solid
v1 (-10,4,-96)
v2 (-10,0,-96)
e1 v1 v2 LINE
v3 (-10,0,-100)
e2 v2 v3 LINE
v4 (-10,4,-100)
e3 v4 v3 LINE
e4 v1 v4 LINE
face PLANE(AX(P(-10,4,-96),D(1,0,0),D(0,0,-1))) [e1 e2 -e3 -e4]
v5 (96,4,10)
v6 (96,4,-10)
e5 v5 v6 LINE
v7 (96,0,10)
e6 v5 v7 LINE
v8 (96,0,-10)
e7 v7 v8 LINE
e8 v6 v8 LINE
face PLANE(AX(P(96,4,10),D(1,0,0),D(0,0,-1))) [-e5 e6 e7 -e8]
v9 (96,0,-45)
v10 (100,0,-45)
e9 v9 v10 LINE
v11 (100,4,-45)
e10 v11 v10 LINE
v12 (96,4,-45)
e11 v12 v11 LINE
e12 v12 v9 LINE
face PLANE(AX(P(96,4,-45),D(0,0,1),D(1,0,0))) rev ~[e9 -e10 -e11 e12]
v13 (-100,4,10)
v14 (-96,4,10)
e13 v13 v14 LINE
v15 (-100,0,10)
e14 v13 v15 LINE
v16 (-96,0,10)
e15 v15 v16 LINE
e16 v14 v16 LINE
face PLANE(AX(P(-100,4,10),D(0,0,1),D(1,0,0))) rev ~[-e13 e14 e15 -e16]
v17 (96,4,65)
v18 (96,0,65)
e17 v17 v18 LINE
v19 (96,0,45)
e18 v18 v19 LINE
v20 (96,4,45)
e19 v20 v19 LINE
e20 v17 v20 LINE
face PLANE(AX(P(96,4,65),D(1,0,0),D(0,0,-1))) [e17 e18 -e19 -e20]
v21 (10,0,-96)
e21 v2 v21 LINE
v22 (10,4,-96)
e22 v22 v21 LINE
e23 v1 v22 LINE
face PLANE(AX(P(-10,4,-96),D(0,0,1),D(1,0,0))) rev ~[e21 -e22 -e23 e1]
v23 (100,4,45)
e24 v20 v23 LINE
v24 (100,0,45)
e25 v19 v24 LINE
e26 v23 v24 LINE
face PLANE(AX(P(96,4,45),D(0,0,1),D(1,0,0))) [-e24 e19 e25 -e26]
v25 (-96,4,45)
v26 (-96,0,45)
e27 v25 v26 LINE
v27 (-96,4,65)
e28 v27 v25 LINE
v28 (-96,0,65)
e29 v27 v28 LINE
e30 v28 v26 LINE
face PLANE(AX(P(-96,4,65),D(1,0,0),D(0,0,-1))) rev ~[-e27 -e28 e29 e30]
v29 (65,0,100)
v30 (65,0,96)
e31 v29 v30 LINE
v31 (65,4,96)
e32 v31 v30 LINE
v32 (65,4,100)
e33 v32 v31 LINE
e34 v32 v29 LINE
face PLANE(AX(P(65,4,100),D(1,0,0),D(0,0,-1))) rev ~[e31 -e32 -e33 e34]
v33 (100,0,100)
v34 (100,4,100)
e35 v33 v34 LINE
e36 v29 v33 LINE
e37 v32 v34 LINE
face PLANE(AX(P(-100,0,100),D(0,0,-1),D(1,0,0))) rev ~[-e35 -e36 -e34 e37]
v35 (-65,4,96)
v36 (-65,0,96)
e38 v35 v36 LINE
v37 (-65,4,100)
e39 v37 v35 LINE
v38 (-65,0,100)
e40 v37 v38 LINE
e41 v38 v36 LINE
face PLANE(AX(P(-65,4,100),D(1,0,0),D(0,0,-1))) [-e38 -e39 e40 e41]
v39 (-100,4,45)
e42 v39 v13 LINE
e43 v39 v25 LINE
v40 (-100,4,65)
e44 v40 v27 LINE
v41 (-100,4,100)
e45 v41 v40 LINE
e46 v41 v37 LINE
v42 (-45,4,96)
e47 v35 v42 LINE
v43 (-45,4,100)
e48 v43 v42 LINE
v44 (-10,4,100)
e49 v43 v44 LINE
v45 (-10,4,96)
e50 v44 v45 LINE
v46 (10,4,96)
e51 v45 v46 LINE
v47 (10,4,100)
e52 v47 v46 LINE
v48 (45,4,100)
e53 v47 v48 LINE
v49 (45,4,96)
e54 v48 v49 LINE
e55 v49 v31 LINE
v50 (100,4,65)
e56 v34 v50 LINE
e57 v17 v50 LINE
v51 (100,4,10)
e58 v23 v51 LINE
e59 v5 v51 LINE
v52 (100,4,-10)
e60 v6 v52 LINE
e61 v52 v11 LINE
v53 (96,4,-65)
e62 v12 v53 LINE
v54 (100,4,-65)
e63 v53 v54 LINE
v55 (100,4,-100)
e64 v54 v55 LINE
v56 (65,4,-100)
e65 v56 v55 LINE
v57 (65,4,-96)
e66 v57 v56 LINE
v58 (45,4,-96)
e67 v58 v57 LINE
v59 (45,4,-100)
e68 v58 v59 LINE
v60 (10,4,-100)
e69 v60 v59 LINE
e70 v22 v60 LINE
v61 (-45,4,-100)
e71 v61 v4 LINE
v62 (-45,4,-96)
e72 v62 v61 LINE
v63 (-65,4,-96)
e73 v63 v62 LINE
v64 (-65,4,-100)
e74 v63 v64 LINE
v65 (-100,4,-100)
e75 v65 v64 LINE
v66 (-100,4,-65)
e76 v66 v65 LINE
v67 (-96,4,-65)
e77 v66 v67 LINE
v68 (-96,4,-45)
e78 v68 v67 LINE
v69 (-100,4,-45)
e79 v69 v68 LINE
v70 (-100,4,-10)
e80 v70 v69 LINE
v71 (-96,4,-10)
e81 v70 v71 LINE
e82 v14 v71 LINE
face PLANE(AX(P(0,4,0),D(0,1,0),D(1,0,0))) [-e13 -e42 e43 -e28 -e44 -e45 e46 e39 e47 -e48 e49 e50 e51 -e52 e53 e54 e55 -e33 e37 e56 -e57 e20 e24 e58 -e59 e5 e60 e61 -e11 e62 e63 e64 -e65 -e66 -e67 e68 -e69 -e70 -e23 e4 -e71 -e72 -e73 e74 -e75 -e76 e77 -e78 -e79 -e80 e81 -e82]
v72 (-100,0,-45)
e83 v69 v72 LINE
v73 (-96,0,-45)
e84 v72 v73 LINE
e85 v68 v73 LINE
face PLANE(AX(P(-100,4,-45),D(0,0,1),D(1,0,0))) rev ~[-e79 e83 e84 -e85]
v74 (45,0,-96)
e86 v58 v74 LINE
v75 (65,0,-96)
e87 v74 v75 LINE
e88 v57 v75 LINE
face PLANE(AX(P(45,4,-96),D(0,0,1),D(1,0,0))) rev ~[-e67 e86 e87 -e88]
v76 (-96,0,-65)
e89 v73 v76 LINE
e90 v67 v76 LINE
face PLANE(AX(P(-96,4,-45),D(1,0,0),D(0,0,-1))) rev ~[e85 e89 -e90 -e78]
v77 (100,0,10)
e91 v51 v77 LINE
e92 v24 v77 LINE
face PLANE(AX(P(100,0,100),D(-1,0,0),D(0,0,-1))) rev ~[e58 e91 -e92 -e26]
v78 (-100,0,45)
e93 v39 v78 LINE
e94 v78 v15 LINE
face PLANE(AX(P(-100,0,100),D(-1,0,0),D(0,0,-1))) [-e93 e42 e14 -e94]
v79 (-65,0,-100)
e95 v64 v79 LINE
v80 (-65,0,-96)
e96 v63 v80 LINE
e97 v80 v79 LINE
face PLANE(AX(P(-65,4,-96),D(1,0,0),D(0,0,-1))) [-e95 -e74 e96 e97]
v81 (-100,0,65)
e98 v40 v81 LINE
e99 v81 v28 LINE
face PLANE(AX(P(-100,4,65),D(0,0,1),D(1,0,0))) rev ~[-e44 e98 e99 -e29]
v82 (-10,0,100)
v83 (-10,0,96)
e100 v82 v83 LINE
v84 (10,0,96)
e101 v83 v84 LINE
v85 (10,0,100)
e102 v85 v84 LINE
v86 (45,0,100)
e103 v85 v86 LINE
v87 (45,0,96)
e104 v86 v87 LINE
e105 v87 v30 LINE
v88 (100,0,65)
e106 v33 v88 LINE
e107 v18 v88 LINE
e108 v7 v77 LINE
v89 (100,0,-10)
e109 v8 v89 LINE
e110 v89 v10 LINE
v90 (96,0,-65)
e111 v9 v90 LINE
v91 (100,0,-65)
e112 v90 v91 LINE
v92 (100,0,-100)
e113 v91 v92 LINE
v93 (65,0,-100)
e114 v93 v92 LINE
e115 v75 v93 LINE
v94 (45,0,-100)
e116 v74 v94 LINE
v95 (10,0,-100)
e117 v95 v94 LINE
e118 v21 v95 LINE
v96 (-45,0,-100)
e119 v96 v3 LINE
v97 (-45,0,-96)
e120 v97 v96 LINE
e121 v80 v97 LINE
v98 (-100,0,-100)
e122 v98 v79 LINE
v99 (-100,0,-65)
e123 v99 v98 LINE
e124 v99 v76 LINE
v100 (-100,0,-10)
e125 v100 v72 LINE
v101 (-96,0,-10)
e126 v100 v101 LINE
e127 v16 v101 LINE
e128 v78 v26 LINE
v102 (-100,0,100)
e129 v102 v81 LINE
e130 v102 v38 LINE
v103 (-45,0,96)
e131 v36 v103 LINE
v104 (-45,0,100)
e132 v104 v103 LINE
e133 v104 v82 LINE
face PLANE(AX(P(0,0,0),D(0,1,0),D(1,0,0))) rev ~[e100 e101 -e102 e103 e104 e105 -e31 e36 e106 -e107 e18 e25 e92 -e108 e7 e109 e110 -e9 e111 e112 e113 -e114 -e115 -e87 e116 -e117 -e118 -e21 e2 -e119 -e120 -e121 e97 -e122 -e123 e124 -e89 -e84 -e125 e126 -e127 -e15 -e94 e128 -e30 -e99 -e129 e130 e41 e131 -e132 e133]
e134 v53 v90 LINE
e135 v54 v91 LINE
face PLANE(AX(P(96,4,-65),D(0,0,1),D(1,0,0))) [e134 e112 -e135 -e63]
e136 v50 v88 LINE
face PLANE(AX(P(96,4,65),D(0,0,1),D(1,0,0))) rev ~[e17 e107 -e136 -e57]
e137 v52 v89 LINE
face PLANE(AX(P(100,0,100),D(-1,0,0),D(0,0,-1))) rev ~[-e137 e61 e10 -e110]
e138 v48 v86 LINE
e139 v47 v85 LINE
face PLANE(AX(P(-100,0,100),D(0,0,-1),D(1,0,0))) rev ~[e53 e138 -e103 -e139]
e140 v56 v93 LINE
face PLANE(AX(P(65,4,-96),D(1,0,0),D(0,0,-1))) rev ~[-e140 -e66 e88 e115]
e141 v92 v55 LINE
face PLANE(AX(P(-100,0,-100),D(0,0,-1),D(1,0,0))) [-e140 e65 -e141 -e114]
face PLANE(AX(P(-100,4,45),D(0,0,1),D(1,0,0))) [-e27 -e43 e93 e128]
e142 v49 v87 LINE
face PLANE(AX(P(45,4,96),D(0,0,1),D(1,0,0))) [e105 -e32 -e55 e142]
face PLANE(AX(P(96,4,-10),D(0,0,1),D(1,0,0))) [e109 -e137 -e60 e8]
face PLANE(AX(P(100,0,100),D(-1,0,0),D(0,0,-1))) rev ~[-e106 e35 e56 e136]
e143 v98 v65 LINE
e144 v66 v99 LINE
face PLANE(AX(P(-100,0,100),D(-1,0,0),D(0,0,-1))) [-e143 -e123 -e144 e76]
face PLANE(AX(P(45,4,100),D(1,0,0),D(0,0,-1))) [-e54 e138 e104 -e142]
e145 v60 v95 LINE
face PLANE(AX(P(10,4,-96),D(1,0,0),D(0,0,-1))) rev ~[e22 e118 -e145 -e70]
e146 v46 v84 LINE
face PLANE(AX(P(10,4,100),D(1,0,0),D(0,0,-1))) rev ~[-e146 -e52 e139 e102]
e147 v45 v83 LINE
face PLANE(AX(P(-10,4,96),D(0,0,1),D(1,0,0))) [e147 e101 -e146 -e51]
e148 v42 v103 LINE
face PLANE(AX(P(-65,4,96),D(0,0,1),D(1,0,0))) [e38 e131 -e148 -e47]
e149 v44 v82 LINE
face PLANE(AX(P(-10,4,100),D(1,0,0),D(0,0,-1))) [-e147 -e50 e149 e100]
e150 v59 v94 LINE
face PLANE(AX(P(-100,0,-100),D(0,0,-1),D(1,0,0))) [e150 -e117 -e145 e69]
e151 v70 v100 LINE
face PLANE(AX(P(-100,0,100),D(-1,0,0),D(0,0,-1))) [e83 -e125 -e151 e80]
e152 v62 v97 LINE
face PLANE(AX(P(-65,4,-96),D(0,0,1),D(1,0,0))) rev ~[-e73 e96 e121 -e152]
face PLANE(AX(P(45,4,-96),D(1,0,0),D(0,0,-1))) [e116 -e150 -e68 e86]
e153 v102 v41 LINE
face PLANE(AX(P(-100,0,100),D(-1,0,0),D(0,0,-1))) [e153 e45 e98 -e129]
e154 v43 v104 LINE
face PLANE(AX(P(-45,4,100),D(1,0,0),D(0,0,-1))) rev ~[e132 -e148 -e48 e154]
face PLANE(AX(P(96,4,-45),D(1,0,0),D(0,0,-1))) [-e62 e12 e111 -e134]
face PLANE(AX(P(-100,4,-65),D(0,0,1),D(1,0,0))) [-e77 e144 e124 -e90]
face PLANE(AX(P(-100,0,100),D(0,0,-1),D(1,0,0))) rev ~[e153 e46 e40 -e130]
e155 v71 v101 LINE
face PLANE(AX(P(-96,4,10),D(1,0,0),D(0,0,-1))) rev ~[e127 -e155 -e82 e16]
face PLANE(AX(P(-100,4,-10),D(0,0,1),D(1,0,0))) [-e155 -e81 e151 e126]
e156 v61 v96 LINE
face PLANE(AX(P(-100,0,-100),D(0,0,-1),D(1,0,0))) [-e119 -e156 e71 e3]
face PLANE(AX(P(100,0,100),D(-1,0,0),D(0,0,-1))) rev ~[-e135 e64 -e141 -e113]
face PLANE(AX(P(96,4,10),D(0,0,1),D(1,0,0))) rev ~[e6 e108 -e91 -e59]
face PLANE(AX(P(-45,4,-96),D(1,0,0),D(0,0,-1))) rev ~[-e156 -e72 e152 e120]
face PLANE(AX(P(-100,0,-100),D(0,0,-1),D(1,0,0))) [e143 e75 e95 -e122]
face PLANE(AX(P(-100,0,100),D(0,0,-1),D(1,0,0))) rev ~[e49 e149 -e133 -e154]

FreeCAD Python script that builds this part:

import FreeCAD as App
import Part
import Sketcher

V = App.Vector

doc = App.newDocument("Part")
body = doc.addObject("PartDesign::Body", "Body")

# Sketch on XZ plane
sketch1 = body.newObject("Sketcher::SketchObject", "Sketch")
sketch1.AttachmentSupport = (doc.getObject("XZ_Plane"), [""])
sketch1.MapMode = "FlatFace"
sketch1.addGeometry([
    Part.LineSegment(V(-100, -100, 0), V(-100, 100, 0)),
    Part.LineSegment(V(-100, 100, 0), V(100, 100, 0)),
    Part.LineSegment(V(100, 100, 0), V(100, -100, 0)),
    Part.LineSegment(V(100, -100, 0), V(-100, -100, 0)),
], False)
sketch1.addConstraint([
    Sketcher.Constraint("Coincident", 0, 2, 1, 1),
    Sketcher.Constraint("Coincident", 1, 2, 2, 1),
    Sketcher.Constraint("Coincident", 2, 2, 3, 1),
    Sketcher.Constraint("Coincident", 3, 2, 0, 1),
    Sketcher.Constraint("Vertical", 0),
    Sketcher.Constraint("Horizontal", 1),
    Sketcher.Constraint("Vertical", 2),
    Sketcher.Constraint("Horizontal", 3),
    Sketcher.Constraint("Symmetric", 0, 2, 2, 2, -1, 1),
    Sketcher.Constraint("Equal", 3, 0),
    Sketcher.Constraint("DistanceX", 1, 1, 1, 2, 200.0),
])
pad1 = body.newObject("PartDesign::Pad", "Pad")
pad1.Profile = sketch1
pad1.Length = 4
pad1.Reversed = True

# Sketch on XZ plane
sketch2 = body.newObject("Sketcher::SketchObject", "Sketch001")
sketch2.AttachmentSupport = (doc.getObject("XZ_Plane"), [""])
sketch2.MapMode = "FlatFace"
sketch2.AttachmentOffset = App.Placement(V(0, 0, -4), App.Rotation())
sketch2.addGeometry([
    Part.LineSegment(V(-65, -100, 0), V(-65, -96, 0)),  # 0
    Part.LineSegment(V(-65, -96, 0), V(-45, -96, 0)),  # 1
    Part.LineSegment(V(-45, -96, 0), V(-45, -100, 0)),  # 2
    Part.LineSegment(V(-45, -100, 0), V(-65, -100, 0)),  # 3
    Part.LineSegment(V(45, -100, 0), V(45, -96, 0)),  # 4
    Part.LineSegment(V(45, -96, 0), V(65, -96, 0)),  # 5
    Part.LineSegment(V(65, -96, 0), V(65, -100, 0)),  # 6
    Part.LineSegment(V(65, -100, 0), V(45, -100, 0)),  # 7
    Part.LineSegment(V(-10, -100, 0), V(-10, -96, 0)),  # 8
    Part.LineSegment(V(-10, -96, 0), V(10, -96, 0)),  # 9
    Part.LineSegment(V(10, -96, 0), V(10, -100, 0)),  # 10
    Part.LineSegment(V(10, -100, 0), V(-10, -100, 0)),  # 11
    Part.LineSegment(V(96, -65, 0), V(96, -45, 0)),  # 12
    Part.LineSegment(V(96, -45, 0), V(100, -45, 0)),  # 13
    Part.LineSegment(V(100, -45, 0), V(100, -65, 0)),  # 14
    Part.LineSegment(V(100, -65, 0), V(96, -65, 0)),  # 15
    Part.LineSegment(V(96, -10, 0), V(96, 10, 0)),  # 16
    Part.LineSegment(V(96, 10, 0), V(100, 10, 0)),  # 17
    Part.LineSegment(V(100, 10, 0), V(100, -10, 0)),  # 18
    Part.LineSegment(V(100, -10, 0), V(96, -10, 0)),  # 19
    Part.LineSegment(V(96, 45, 0), V(96, 65, 0)),  # 20
    Part.LineSegment(V(96, 65, 0), V(100, 65, 0)),  # 21
    Part.LineSegment(V(100, 65, 0), V(100, 45, 0)),  # 22
    Part.LineSegment(V(100, 45, 0), V(96, 45, 0)),  # 23
    Part.LineSegment(V(-100, -10, 0), V(-100, 10, 0)),  # 24
    Part.LineSegment(V(-100, 10, 0), V(-96, 10, 0)),  # 25
    Part.LineSegment(V(-96, 10, 0), V(-96, -10, 0)),  # 26
    Part.LineSegment(V(-96, -10, 0), V(-100, -10, 0)),  # 27
    Part.LineSegment(V(-100, 45, 0), V(-100, 65, 0)),  # 28
    Part.LineSegment(V(-100, 65, 0), V(-96, 65, 0)),  # 29
    Part.LineSegment(V(-96, 65, 0), V(-96, 45, 0)),  # 30
    Part.LineSegment(V(-96, 45, 0), V(-100, 45, 0)),  # 31
    Part.LineSegment(V(-100, -65, 0), V(-100, -45, 0)),  # 32
    Part.LineSegment(V(-100, -45, 0), V(-96, -45, 0)),  # 33
    Part.LineSegment(V(-96, -45, 0), V(-96, -65, 0)),  # 34
    Part.LineSegment(V(-96, -65, 0), V(-100, -65, 0)),  # 35
    Part.LineSegment(V(45, 96, 0), V(45, 100, 0)),  # 36
    Part.LineSegment(V(45, 100, 0), V(65, 100, 0)),  # 37
    Part.LineSegment(V(65, 100, 0), V(65, 96, 0)),  # 38
    Part.LineSegment(V(65, 96, 0), V(45, 96, 0)),  # 39
    Part.LineSegment(V(-65, 96, 0), V(-65, 100, 0)),  # 40
    Part.LineSegment(V(-65, 100, 0), V(-45, 100, 0)),  # 41
    Part.LineSegment(V(-45, 100, 0), V(-45, 96, 0)),  # 42
    Part.LineSegment(V(-45, 96, 0), V(-65, 96, 0)),  # 43
    Part.LineSegment(V(-10, 96, 0), V(-10, 100, 0)),  # 44
    Part.LineSegment(V(-10, 100, 0), V(10, 100, 0)),  # 45
    Part.LineSegment(V(10, 100, 0), V(10, 96, 0)),  # 46
    Part.LineSegment(V(10, 96, 0), V(-10, 96, 0)),  # 47
], False)
sketch2.addConstraint([
    Sketcher.Constraint("Coincident", 0, 2, 1, 1),
    Sketcher.Constraint("Coincident", 1, 2, 2, 1),
    Sketcher.Constraint("Coincident", 2, 2, 3, 1),
    Sketcher.Constraint("Coincident", 3, 2, 0, 1),
    Sketcher.Constraint("Coincident", 4, 2, 5, 1),
    Sketcher.Constraint("Coincident", 5, 2, 6, 1),
    Sketcher.Constraint("Coincident", 6, 2, 7, 1),
    Sketcher.Constraint("Coincident", 7, 2, 4, 1),
    Sketcher.Constraint("Coincident", 8, 2, 9, 1),
    Sketcher.Constraint("Coincident", 9, 2, 10, 1),
    Sketcher.Constraint("Coincident", 10, 2, 11, 1),
    Sketcher.Constraint("Coincident", 11, 2, 8, 1),
    Sketcher.Constraint("Coincident", 12, 2, 13, 1),
    Sketcher.Constraint("Coincident", 13, 2, 14, 1),
    Sketcher.Constraint("Coincident", 14, 2, 15, 1),
    Sketcher.Constraint("Coincident", 15, 2, 12, 1),
    Sketcher.Constraint("Coincident", 16, 2, 17, 1),
    Sketcher.Constraint("Coincident", 17, 2, 18, 1),
    Sketcher.Constraint("Coincident", 18, 2, 19, 1),
    Sketcher.Constraint("Coincident", 19, 2, 16, 1),
    Sketcher.Constraint("Coincident", 20, 2, 21, 1),
    Sketcher.Constraint("Coincident", 21, 2, 22, 1),
    Sketcher.Constraint("Coincident", 22, 2, 23, 1),
    Sketcher.Constraint("Coincident", 23, 2, 20, 1),
    Sketcher.Constraint("Coincident", 24, 2, 25, 1),
    Sketcher.Constraint("Coincident", 25, 2, 26, 1),
    Sketcher.Constraint("Coincident", 26, 2, 27, 1),
    Sketcher.Constraint("Coincident", 27, 2, 24, 1),
    Sketcher.Constraint("Coincident", 28, 2, 29, 1),
    Sketcher.Constraint("Coincident", 29, 2, 30, 1),
    Sketcher.Constraint("Coincident", 30, 2, 31, 1),
    Sketcher.Constraint("Coincident", 31, 2, 28, 1),
    Sketcher.Constraint("Coincident", 32, 2, 33, 1),
    Sketcher.Constraint("Coincident", 33, 2, 34, 1),
    Sketcher.Constraint("Coincident", 34, 2, 35, 1),
    Sketcher.Constraint("Coincident", 35, 2, 32, 1),
    Sketcher.Constraint("Coincident", 36, 2, 37, 1),
    Sketcher.Constraint("Coincident", 37, 2, 38, 1),
    Sketcher.Constraint("Coincident", 38, 2, 39, 1),
    Sketcher.Constraint("Coincident", 39, 2, 36, 1),
    Sketcher.Constraint("Coincident", 40, 2, 41, 1),
    Sketcher.Constraint("Coincident", 41, 2, 42, 1),
    Sketcher.Constraint("Coincident", 42, 2, 43, 1),
    Sketcher.Constraint("Coincident", 43, 2, 40, 1),
    Sketcher.Constraint("Coincident", 44, 2, 45, 1),
    Sketcher.Constraint("Coincident", 45, 2, 46, 1),
    Sketcher.Constraint("Coincident", 46, 2, 47, 1),
    Sketcher.Constraint("Coincident", 47, 2, 44, 1),
    Sketcher.Constraint("Vertical", 0),
    Sketcher.Constraint("Horizontal", 1),
    Sketcher.Constraint("Vertical", 2),
    Sketcher.Constraint("Horizontal", 3),
    Sketcher.Constraint("Vertical", 4),
    Sketcher.Constraint("Horizontal", 5),
    Sketcher.Constraint("Vertical", 6),
    Sketcher.Constraint("Horizontal", 7),
    Sketcher.Constraint("Vertical", 8),
    Sketcher.Constraint("Horizontal", 9),
    Sketcher.Constraint("Vertical", 10),
    Sketcher.Constraint("Horizontal", 11),
    Sketcher.Constraint("Vertical", 12),
    Sketcher.Constraint("Horizontal", 13),
    Sketcher.Constraint("Vertical", 14),
    Sketcher.Constraint("Horizontal", 15),
    Sketcher.Constraint("Vertical", 16),
    Sketcher.Constraint("Horizontal", 17),
    Sketcher.Constraint("Vertical", 18),
    Sketcher.Constraint("Horizontal", 19),
    Sketcher.Constraint("Vertical", 20),
    Sketcher.Constraint("Horizontal", 21),
    Sketcher.Constraint("Vertical", 22),
    Sketcher.Constraint("Horizontal", 23),
    Sketcher.Constraint("Vertical", 24),
    Sketcher.Constraint("Horizontal", 25),
    Sketcher.Constraint("Vertical", 26),
    Sketcher.Constraint("Horizontal", 27),
    Sketcher.Constraint("Vertical", 28),
    Sketcher.Constraint("Horizontal", 29),
    Sketcher.Constraint("Vertical", 30),
    Sketcher.Constraint("Horizontal", 31),
    Sketcher.Constraint("Vertical", 32),
    Sketcher.Constraint("Horizontal", 33),
    Sketcher.Constraint("Vertical", 34),
    Sketcher.Constraint("Horizontal", 35),
    Sketcher.Constraint("Vertical", 36),
    Sketcher.Constraint("Horizontal", 37),
    Sketcher.Constraint("Vertical", 38),
    Sketcher.Constraint("Horizontal", 39),
    Sketcher.Constraint("Vertical", 40),
    Sketcher.Constraint("Horizontal", 41),
    Sketcher.Constraint("Vertical", 42),
    Sketcher.Constraint("Horizontal", 43),
    Sketcher.Constraint("Vertical", 44),
    Sketcher.Constraint("Horizontal", 45),
    Sketcher.Constraint("Vertical", 46),
    Sketcher.Constraint("Horizontal", 47),
    Sketcher.Constraint("Symmetric", 18, 2, 24, 2, -1, 1),
    Sketcher.Constraint("Symmetric", 16, 2, 26, 2, -1, 1),
    Sketcher.Constraint("Symmetric", 14, 2, 28, 2, -1, 1),
    Sketcher.Constraint("Symmetric", 12, 2, 30, 2, -1, 1),
    Sketcher.Constraint("Symmetric", 22, 2, 32, 2, -1, 1),
    Sketcher.Constraint("Symmetric", 20, 2, 34, 2, -1, 1),
    Sketcher.Constraint("Symmetric", 2, 2, 36, 2, -1, 1),
    Sketcher.Constraint("Symmetric", 0, 2, 38, 2, -1, 1),
    Sketcher.Constraint("Symmetric", 6, 2, 40, 2, -1, 1),
    Sketcher.Constraint("Symmetric", 4, 2, 42, 2, -1, 1),
    Sketcher.Constraint("Symmetric", 10, 2, 44, 2, -1, 1),
    Sketcher.Constraint("Symmetric", 8, 2, 46, 2, -1, 1),
    Sketcher.Constraint("Symmetric", 1, 2, 4, 2, -2),
    Sketcher.Constraint("Symmetric", 3, 2, 6, 2, -2),
    Sketcher.Constraint("Symmetric", 21, 2, 28, 2, -2),
    Sketcher.Constraint("Symmetric", 23, 2, 30, 2, -2),
    Sketcher.Constraint("Horizontal", 5, 2, 8, 2),
    Sketcher.Constraint("Horizontal", 7, 2, 10, 2),
    Sketcher.Constraint("Horizontal", 17, 2, 24, 2),
    Sketcher.Constraint("Vertical", 15, 2, 16, 2),
    Sketcher.Constraint("Vertical", 14, 2, 17, 2),
    Sketcher.Constraint("Vertical", 11, 2, 44, 2),
    Sketcher.Constraint("Equal", 7, 9),
    Sketcher.Constraint("Equal", 35, 0),
    Sketcher.Constraint("Equal", 47, 12),
    Sketcher.Constraint("Equal", 14, 16),
    Sketcher.Constraint("DistanceX", 1, 1, 1, 2, 20.0),
    Sketcher.Constraint("DistanceX", 13, 1, 13, 2, 4.0),
    Sketcher.Constraint("DistanceX", 0, 2, -1, 1, 65.0),
    Sketcher.Constraint("DistanceY", 0, 2, -1, 1, 96.0),
    Sketcher.Constraint("DistanceX", -1, 1, 12, 2, 96.0),
    Sketcher.Constraint("DistanceY", 12, 2, -1, 1, 45.0),
])
pocket1 = body.newObject("PartDesign::Pocket", "Pocket")
pocket1.Profile = sketch2
pocket1.Type = "ThroughAll"
pocket1.Reversed = True

doc.recompute()
